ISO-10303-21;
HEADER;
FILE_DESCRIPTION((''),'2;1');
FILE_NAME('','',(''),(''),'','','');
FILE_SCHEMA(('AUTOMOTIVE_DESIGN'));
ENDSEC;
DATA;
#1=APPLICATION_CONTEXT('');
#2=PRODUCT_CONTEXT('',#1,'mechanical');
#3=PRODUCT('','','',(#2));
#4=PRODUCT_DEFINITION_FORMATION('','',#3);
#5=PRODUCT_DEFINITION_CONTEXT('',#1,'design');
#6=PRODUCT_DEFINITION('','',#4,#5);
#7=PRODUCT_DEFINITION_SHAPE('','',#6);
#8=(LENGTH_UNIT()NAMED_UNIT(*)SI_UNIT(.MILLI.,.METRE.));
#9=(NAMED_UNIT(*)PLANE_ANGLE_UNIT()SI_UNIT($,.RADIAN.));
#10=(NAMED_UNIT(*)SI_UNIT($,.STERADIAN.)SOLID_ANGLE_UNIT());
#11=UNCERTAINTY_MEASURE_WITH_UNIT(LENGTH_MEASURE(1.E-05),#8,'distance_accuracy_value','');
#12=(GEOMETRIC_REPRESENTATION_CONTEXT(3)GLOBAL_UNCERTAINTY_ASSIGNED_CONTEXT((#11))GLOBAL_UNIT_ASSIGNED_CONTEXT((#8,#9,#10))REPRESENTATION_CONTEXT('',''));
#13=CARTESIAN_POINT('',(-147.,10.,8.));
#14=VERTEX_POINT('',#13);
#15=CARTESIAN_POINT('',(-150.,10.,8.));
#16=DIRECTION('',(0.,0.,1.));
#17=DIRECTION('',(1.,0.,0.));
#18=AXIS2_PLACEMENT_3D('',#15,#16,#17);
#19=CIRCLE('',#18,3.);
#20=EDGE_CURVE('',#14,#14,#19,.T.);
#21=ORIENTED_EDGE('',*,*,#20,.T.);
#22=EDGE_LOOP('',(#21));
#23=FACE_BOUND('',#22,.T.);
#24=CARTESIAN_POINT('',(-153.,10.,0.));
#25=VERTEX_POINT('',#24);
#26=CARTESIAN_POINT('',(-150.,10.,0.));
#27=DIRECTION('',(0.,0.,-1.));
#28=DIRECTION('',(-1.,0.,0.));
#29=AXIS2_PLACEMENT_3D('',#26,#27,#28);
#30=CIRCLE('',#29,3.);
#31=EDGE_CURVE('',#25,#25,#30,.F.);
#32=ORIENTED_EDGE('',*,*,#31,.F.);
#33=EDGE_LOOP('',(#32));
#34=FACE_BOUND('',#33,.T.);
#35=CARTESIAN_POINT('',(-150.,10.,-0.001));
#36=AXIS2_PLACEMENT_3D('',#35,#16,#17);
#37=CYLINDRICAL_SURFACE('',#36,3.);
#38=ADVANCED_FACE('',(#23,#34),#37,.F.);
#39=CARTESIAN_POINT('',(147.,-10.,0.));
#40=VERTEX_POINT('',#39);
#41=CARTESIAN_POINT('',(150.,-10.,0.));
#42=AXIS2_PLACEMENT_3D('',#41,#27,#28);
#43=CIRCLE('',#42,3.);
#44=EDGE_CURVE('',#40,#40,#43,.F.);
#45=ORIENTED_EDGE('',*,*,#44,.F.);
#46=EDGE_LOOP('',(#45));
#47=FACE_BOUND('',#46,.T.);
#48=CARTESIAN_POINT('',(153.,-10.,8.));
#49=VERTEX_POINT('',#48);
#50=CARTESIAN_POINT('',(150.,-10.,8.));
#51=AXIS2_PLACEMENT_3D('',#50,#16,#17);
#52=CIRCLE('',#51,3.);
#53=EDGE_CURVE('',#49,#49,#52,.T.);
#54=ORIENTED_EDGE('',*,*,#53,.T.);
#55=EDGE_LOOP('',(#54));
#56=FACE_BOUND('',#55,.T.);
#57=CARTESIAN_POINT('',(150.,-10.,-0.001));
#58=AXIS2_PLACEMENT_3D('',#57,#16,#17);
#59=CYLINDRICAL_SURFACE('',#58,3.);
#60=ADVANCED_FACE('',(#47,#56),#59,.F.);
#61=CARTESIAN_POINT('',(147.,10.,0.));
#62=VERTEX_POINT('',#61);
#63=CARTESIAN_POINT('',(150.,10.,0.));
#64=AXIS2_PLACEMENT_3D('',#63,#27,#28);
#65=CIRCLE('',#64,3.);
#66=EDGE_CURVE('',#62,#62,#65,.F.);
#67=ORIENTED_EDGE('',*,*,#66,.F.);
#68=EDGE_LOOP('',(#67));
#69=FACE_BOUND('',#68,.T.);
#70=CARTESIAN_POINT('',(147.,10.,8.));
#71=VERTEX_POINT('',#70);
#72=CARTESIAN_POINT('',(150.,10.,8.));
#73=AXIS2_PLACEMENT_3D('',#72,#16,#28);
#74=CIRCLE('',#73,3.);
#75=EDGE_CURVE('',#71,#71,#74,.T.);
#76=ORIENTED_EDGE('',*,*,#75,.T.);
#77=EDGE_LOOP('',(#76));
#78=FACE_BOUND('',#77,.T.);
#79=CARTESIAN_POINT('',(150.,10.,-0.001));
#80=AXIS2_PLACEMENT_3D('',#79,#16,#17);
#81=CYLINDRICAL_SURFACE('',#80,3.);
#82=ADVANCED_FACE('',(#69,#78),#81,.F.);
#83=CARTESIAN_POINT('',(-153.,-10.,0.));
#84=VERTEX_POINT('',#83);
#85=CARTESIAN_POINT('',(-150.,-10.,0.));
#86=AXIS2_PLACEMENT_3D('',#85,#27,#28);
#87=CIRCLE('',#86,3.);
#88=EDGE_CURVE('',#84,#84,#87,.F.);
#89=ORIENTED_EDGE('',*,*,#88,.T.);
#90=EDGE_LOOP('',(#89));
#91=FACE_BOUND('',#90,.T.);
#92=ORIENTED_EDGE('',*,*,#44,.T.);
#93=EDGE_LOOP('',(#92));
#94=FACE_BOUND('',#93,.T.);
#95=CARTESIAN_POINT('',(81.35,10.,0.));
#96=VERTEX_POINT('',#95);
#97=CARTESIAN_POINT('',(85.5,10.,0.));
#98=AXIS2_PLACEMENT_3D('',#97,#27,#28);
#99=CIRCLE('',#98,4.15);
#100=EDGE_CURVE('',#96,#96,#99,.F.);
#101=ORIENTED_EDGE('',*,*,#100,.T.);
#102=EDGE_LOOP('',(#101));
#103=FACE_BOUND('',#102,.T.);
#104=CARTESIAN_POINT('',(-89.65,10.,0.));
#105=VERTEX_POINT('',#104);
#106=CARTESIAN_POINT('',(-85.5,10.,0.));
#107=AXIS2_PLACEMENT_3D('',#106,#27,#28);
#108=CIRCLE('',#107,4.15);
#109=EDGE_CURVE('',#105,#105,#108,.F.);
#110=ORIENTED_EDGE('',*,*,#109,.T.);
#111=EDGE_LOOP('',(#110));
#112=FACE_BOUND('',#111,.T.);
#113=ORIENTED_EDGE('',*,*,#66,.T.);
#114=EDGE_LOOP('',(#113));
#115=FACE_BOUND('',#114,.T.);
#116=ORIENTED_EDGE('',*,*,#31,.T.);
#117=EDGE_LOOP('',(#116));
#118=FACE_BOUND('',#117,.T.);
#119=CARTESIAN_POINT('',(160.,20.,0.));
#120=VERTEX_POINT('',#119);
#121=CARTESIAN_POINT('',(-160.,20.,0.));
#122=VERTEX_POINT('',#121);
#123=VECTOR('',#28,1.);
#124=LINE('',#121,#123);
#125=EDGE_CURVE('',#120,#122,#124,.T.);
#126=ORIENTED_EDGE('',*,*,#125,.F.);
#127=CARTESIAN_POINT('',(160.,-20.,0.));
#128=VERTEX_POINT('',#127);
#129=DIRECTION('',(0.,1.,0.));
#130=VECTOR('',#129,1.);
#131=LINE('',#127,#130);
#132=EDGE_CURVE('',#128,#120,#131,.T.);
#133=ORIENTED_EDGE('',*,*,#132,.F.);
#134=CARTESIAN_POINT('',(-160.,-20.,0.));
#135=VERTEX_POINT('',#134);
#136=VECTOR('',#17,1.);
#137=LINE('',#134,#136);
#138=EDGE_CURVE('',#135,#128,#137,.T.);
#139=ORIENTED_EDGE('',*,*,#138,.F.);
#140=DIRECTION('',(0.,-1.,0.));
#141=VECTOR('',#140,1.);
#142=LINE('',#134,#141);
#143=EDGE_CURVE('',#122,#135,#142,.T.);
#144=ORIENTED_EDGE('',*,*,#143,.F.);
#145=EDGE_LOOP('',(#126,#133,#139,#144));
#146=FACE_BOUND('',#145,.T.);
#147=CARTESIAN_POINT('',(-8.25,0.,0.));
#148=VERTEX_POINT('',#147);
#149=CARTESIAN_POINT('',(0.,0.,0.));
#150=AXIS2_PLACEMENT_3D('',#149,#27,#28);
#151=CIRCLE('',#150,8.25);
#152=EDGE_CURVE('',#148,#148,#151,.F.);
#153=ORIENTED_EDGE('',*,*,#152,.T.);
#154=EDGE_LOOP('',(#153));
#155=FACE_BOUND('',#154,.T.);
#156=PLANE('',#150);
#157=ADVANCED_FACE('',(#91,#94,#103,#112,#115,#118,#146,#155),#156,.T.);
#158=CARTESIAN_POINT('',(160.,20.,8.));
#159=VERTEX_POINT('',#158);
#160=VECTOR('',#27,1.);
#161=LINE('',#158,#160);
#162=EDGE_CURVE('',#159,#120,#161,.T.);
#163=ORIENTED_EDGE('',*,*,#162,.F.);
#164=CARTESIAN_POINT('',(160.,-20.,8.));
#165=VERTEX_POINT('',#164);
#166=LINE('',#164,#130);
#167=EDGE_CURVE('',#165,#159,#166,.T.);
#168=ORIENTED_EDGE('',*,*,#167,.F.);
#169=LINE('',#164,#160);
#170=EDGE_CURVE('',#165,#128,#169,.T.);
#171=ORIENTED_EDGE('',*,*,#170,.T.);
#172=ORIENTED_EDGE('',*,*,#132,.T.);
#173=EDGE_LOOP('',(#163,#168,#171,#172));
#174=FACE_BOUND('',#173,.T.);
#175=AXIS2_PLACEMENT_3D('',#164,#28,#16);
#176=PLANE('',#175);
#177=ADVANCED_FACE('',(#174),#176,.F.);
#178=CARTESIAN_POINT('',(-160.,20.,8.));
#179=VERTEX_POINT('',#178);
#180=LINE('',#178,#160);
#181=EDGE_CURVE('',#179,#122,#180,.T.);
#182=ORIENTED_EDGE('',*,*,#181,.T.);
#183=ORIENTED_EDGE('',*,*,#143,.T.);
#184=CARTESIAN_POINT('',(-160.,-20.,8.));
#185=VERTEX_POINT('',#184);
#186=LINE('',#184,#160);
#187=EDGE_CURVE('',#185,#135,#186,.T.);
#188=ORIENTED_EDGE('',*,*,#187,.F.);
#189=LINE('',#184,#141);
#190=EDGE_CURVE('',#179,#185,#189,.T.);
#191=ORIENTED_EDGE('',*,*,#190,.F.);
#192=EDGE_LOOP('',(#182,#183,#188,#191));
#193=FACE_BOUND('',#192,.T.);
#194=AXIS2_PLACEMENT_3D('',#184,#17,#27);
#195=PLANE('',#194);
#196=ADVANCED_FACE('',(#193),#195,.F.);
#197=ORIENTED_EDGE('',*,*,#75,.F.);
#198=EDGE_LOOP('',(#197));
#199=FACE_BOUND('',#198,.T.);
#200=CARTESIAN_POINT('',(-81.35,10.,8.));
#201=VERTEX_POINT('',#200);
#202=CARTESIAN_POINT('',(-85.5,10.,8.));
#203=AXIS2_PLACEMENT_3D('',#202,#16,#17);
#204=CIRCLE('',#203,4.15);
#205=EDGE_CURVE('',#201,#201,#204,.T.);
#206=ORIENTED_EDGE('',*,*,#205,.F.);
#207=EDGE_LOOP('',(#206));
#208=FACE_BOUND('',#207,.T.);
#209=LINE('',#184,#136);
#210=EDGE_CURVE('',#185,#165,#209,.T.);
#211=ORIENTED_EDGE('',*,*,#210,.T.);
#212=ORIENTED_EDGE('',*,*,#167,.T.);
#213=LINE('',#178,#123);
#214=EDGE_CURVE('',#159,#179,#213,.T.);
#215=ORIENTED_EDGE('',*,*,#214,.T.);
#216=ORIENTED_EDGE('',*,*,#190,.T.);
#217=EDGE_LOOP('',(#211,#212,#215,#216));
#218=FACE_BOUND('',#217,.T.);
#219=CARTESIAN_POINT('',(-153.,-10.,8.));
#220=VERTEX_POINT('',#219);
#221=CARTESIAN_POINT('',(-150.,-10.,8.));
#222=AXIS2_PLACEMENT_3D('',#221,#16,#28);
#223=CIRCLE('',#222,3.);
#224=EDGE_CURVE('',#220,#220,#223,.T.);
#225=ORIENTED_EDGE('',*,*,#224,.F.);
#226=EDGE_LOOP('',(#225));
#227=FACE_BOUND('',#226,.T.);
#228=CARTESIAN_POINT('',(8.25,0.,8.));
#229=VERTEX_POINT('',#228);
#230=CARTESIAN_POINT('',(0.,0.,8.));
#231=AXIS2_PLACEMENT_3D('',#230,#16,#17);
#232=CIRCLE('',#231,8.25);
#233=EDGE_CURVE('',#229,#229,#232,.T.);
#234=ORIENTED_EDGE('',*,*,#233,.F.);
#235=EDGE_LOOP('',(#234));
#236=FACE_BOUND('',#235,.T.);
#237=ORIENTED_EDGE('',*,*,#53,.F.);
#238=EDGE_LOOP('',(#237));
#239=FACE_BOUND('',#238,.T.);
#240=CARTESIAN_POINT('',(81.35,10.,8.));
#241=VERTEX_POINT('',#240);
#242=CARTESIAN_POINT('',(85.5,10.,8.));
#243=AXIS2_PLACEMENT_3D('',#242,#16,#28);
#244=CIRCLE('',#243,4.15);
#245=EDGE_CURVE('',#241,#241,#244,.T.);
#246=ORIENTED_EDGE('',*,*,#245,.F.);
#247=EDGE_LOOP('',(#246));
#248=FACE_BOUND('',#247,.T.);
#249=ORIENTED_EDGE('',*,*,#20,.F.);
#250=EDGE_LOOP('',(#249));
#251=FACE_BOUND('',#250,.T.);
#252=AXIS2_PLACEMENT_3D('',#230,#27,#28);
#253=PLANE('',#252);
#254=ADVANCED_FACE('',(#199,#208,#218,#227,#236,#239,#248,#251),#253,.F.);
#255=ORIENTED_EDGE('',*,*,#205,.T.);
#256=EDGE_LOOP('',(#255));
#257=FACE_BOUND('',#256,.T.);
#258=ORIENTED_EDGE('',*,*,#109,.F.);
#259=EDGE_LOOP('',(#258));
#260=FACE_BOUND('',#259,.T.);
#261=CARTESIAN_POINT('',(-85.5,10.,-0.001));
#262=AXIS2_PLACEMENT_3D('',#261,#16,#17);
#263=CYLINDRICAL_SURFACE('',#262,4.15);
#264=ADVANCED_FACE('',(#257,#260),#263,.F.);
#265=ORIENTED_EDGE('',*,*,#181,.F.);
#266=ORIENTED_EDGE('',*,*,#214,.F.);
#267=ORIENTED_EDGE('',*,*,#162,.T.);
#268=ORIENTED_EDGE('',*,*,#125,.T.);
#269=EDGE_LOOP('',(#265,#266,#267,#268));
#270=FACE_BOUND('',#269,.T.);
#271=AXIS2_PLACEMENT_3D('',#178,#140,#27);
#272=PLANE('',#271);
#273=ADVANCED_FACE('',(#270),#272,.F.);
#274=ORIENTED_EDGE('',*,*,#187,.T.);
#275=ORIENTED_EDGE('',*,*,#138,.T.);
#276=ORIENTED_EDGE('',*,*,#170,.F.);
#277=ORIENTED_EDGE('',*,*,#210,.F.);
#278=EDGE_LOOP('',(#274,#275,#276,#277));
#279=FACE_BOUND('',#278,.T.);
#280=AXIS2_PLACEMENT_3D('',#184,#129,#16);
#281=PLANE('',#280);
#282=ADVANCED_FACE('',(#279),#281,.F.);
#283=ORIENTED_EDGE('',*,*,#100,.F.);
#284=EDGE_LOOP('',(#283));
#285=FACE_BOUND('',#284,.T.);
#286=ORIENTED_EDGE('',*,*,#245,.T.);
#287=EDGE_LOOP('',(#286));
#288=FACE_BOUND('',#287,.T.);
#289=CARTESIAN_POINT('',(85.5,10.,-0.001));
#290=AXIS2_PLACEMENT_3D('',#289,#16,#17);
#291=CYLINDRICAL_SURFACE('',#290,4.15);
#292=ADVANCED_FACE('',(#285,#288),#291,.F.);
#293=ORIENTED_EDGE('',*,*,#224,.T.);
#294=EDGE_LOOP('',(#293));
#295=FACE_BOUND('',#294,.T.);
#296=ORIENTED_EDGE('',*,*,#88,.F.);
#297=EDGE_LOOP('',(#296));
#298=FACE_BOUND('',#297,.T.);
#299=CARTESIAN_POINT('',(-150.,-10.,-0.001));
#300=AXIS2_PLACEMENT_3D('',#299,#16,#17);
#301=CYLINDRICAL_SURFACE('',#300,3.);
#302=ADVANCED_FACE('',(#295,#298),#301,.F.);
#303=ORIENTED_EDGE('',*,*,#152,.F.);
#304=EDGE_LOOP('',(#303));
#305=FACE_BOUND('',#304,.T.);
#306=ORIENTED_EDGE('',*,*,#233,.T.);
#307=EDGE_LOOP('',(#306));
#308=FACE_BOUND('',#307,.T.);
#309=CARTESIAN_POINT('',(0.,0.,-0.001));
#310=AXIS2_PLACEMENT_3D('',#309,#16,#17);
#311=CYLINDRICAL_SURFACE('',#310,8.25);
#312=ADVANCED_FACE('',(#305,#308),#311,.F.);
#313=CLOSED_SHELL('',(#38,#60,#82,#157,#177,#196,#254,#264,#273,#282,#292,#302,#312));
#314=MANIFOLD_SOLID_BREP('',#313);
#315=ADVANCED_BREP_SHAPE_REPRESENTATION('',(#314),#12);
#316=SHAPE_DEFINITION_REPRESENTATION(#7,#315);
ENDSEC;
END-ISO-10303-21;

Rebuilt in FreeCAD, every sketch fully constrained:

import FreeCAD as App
import Part
import Sketcher

V = App.Vector


def add_polygon(sketch, points):
    """Adds a closed chain of lines whose ends are joined by coincident constraints."""
    first, n = sketch.GeometryCount, len(points)
    for a, b in zip(points, points[1:] + points[:1]):
        sketch.addGeometry(Part.LineSegment(App.Vector(*a, 0), App.Vector(*b, 0)), False)
    for i in range(n):
        sketch.addConstraint(Sketcher.Constraint("Coincident", first + i, 2, first + (i + 1) % n, 1))

doc = App.newDocument("Part")
body = doc.addObject("PartDesign::Body", "Body")

sketch1 = doc.addObject("Sketcher::SketchObject", "Sketch")
body.addObject(sketch1)
sketch1.AttachmentSupport = (doc.XY_Plane, [""])
sketch1.MapMode = "FlatFace"
add_polygon(sketch1, [(-160, 20), (-160, -20), (160, -20), (160, 20)])
sketch1.addConstraint([
    Sketcher.Constraint("Vertical", 0),
    Sketcher.Constraint("Horizontal", 1),
    Sketcher.Constraint("Vertical", 2),
    Sketcher.Constraint("Horizontal", 3),
    Sketcher.Constraint("Symmetric", 0, 2, 2, 2, -1, 1),
    Sketcher.Constraint("DistanceX", 1, 1, 1, 2, 320.0),
    Sketcher.Constraint("DistanceY", 0, 2, 0, 1, 40.0),
])
pad1 = doc.addObject("PartDesign::Pad", "Pad")
body.addObject(pad1)
pad1.Profile = sketch1
pad1.Length = 8

sketch2 = doc.addObject("Sketcher::SketchObject", "Sketch001")
body.addObject(sketch2)
sketch2.AttachmentSupport = (doc.XY_Plane, [""])
sketch2.MapMode = "FlatFace"
sketch2.AttachmentOffset = App.Placement(V(0, 0, 8), App.Rotation())
sketch2.addGeometry(Part.Circle(V(-150, 10, 0), V(0, 0, 1), 3), False)
sketch2.addConstraint([
    Sketcher.Constraint("Diameter", 0, 6.0),
    Sketcher.Constraint("DistanceX", 0, 3, -1, 1, 150.0),
    Sketcher.Constraint("DistanceY", -1, 1, 0, 3, 10.0),
])
pocket1 = doc.addObject("PartDesign::Pocket", "Pocket")
body.addObject(pocket1)
pocket1.Profile = sketch2
pocket1.Type = "UpToFirst"

sketch3 = doc.addObject("Sketcher::SketchObject", "Sketch002")
body.addObject(sketch3)
sketch3.AttachmentSupport = (doc.XY_Plane, [""])
sketch3.MapMode = "FlatFace"
sketch3.AttachmentOffset = App.Placement(V(0, 0, 8), App.Rotation())
sketch3.addGeometry(Part.Circle(V(-150, -10, 0), V(0, 0, 1), 3), False)
sketch3.addConstraint([
    Sketcher.Constraint("Diameter", 0, 6.0),
    Sketcher.Constraint("DistanceX", 0, 3, -1, 1, 150.0),
    Sketcher.Constraint("DistanceY", 0, 3, -1, 1, 10.0),
])
pocket2 = doc.addObject("PartDesign::Pocket", "Pocket001")
body.addObject(pocket2)
pocket2.Profile = sketch3
pocket2.Type = "UpToFirst"

sketch4 = doc.addObject("Sketcher::SketchObject", "Sketch003")
body.addObject(sketch4)
sketch4.AttachmentSupport = (doc.XY_Plane, [""])
sketch4.MapMode = "FlatFace"
sketch4.AttachmentOffset = App.Placement(V(0, 0, 8), App.Rotation())
sketch4.addGeometry(Part.Circle(V(150, -10, 0), V(0, 0, 1), 3), False)
sketch4.addConstraint([
    Sketcher.Constraint("Diameter", 0, 6.0),
    Sketcher.Constraint("DistanceX", -1, 1, 0, 3, 150.0),
    Sketcher.Constraint("DistanceY", 0, 3, -1, 1, 10.0),
])
pocket3 = doc.addObject("PartDesign::Pocket", "Pocket002")
body.addObject(pocket3)
pocket3.Profile = sketch4
pocket3.Type = "UpToFirst"

sketch5 = doc.addObject("Sketcher::SketchObject", "Sketch004")
body.addObject(sketch5)
sketch5.AttachmentSupport = (doc.XY_Plane, [""])
sketch5.MapMode = "FlatFace"
sketch5.AttachmentOffset = App.Placement(V(0, 0, 8), App.Rotation())
sketch5.addGeometry(Part.Circle(V(150, 10, 0), V(0, 0, 1), 3), False)
sketch5.addConstraint([
    Sketcher.Constraint("Diameter", 0, 6.0),
    Sketcher.Constraint("DistanceX", -1, 1, 0, 3, 150.0),
    Sketcher.Constraint("DistanceY", -1, 1, 0, 3, 10.0),
])
pocket4 = doc.addObject("PartDesign::Pocket", "Pocket003")
body.addObject(pocket4)
pocket4.Profile = sketch5
pocket4.Type = "UpToFirst"

sketch6 = doc.addObject("Sketcher::SketchObject", "Sketch005")
body.addObject(sketch6)
sketch6.AttachmentSupport = (doc.XY_Plane, [""])
sketch6.MapMode = "FlatFace"
sketch6.AttachmentOffset = App.Placement(V(0, 0, 8), App.Rotation())
sketch6.addGeometry(Part.Circle(V(-85.5, 10, 0), V(0, 0, 1), 4.2), False)
sketch6.addConstraint([
    Sketcher.Constraint("Diameter", 0, 8.3),
    Sketcher.Constraint("DistanceY", -1, 1, 0, 3, 10.0),
    Sketcher.Constraint("DistanceX", 0, 3, -1, 1, 85.5),
])
pocket5 = doc.addObject("PartDesign::Pocket", "Pocket004")
body.addObject(pocket5)
pocket5.Profile = sketch6
pocket5.Type = "UpToFirst"

sketch7 = doc.addObject("Sketcher::SketchObject", "Sketch006")
body.addObject(sketch7)
sketch7.AttachmentSupport = (doc.XY_Plane, [""])
sketch7.MapMode = "FlatFace"
sketch7.AttachmentOffset = App.Placement(V(0, 0, 8), App.Rotation())
sketch7.addGeometry(Part.Circle(V(85.5, 10, 0), V(0, 0, 1), 4.2), False)
sketch7.addConstraint([
    Sketcher.Constraint("Diameter", 0, 8.3),
    Sketcher.Constraint("DistanceY", -1, 1, 0, 3, 10.0),
    Sketcher.Constraint("DistanceX", -1, 1, 0, 3, 85.5),
])
pocket6 = doc.addObject("PartDesign::Pocket", "Pocket005")
body.addObject(pocket6)
pocket6.Profile = sketch7
pocket6.Type = "UpToFirst"

sketch8 = doc.addObject("Sketcher::SketchObject", "Sketch007")
body.addObject(sketch8)
sketch8.AttachmentSupport = (doc.XY_Plane, [""])
sketch8.MapMode = "FlatFace"
sketch8.AttachmentOffset = App.Placement(V(0, 0, 8), App.Rotation())
sketch8.addGeometry(Part.Circle(V(0, 0, 0), V(0, 0, 1), 8), False)
sketch8.addConstraint([
    Sketcher.Constraint("Coincident", 0, 3, -1, 1),
    Sketcher.Constraint("Diameter", 0, 16.5),
])
pocket7 = doc.addObject("PartDesign::Pocket", "Pocket006")
body.addObject(pocket7)
pocket7.Profile = sketch8
pocket7.Type = "UpToFirst"

doc.recompute()
